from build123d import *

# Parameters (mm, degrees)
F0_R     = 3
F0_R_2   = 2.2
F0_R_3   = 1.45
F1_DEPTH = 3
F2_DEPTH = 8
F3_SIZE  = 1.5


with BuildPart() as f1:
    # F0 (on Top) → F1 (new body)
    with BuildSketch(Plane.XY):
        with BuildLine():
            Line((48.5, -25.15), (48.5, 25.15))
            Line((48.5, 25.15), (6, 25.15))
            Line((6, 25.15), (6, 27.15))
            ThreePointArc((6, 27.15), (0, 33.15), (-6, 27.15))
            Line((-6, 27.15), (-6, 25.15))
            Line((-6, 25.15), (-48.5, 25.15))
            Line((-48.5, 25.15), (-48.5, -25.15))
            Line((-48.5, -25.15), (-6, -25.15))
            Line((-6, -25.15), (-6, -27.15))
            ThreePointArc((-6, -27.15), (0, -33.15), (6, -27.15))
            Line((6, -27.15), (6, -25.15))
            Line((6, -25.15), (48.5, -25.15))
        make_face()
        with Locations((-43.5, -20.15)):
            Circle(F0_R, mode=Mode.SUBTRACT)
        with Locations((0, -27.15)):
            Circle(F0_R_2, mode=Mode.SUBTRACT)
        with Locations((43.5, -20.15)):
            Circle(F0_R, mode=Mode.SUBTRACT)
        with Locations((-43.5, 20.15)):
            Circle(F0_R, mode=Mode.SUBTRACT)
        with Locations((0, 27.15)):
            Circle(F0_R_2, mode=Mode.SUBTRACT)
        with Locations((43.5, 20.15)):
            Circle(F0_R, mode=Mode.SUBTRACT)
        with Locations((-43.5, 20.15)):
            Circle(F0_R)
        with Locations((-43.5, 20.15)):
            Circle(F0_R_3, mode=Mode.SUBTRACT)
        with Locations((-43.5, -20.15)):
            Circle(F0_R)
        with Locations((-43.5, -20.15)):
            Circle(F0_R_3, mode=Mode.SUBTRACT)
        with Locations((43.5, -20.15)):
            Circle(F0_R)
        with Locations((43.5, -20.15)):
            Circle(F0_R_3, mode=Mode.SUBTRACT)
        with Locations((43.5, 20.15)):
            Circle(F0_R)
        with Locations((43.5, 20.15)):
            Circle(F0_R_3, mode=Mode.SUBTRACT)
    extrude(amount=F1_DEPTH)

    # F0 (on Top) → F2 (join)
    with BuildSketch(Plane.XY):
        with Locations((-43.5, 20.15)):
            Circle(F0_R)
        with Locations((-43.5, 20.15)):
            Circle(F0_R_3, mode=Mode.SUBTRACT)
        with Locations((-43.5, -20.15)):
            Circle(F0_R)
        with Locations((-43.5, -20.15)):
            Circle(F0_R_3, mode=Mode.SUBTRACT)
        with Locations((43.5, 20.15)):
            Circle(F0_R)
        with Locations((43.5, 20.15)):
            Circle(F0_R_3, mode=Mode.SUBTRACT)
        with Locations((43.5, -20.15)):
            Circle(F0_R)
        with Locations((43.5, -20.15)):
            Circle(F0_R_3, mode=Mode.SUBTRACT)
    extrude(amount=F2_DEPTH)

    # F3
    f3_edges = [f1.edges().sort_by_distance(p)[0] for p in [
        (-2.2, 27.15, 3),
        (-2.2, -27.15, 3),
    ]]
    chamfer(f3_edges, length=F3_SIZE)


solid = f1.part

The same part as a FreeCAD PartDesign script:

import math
import FreeCAD as App
import Part
import Sketcher


def edges_at(feature, points):
    """Names of the edges that pass closest to the given points."""
    edges = feature.Shape.Edges
    near = lambda p: min(range(len(edges)), key=lambda i: edges[i].distToShape(Part.Vertex(*p))[0])
    return sorted({f"Edge{near(p) + 1}" for p in points})

doc = App.newDocument("Part")
body = doc.addObject("PartDesign::Body", "Body")

sketch1 = body.newObject("Sketcher::SketchObject", "Sketch")
sketch1.AttachmentSupport = (doc.getObject("XY_Plane"), [""])
sketch1.MapMode = "FlatFace"
sketch1.addGeometry([
    Part.LineSegment(App.Vector(48.5, -25.1, 0), App.Vector(48.5, 25.1, 0)),
    Part.LineSegment(App.Vector(48.5, 25.1, 0), App.Vector(6, 25.1, 0)),
    Part.LineSegment(App.Vector(6, 25.1, 0), App.Vector(6, 27.1, 0)),
    Part.ArcOfCircle(Part.Circle(App.Vector(0, 27.1, 0), App.Vector(0, 0, 1), 6), math.radians(0), math.radians(180)),
    Part.LineSegment(App.Vector(-6, 27.1, 0), App.Vector(-6, 25.1, 0)),
    Part.LineSegment(App.Vector(-6, 25.1, 0), App.Vector(-48.5, 25.1, 0)),
    Part.LineSegment(App.Vector(-48.5, 25.1, 0), App.Vector(-48.5, -25.1, 0)),
    Part.LineSegment(App.Vector(-48.5, -25.1, 0), App.Vector(-6, -25.1, 0)),
    Part.LineSegment(App.Vector(-6, -25.1, 0), App.Vector(-6, -27.1, 0)),
    Part.ArcOfCircle(Part.Circle(App.Vector(0, -27.1, 0), App.Vector(0, 0, 1), 6), math.radians(180), math.radians(360)),
    Part.LineSegment(App.Vector(6, -27.1, 0), App.Vector(6, -25.1, 0)),
    Part.LineSegment(App.Vector(6, -25.1, 0), App.Vector(48.5, -25.1, 0)),
    Part.Circle(App.Vector(-43.5, -20.1, 0), App.Vector(0, 0, 1), 1.4),
    Part.Circle(App.Vector(0, -27.1, 0), App.Vector(0, 0, 1), 2.2),
    Part.Circle(App.Vector(43.5, -20.1, 0), App.Vector(0, 0, 1), 1.4),
    Part.Circle(App.Vector(-43.5, 20.1, 0), App.Vector(0, 0, 1), 1.4),
    Part.Circle(App.Vector(0, 27.1, 0), App.Vector(0, 0, 1), 2.2),
    Part.Circle(App.Vector(43.5, 20.1, 0), App.Vector(0, 0, 1), 1.4),
], False)
sketch1.addConstraint([
    Sketcher.Constraint("Coincident", 0, 2, 1, 1),
    Sketcher.Constraint("Coincident", 1, 2, 2, 1),
    Sketcher.Constraint("Tangent", 2, 2, 3, 1),
    Sketcher.Constraint("Tangent", 3, 2, 4, 1),
    Sketcher.Constraint("Coincident", 4, 2, 5, 1),
    Sketcher.Constraint("Coincident", 5, 2, 6, 1),
    Sketcher.Constraint("Coincident", 6, 2, 7, 1),
    Sketcher.Constraint("Coincident", 7, 2, 8, 1),
    Sketcher.Constraint("Tangent", 8, 2, 9, 1),
    Sketcher.Constraint("Tangent", 9, 2, 10, 1),
    Sketcher.Constraint("Coincident", 10, 2, 11, 1),
    Sketcher.Constraint("Coincident", 11, 2, 0, 1),
    Sketcher.Constraint("Vertical", 0),
    Sketcher.Constraint("Horizontal", 1),
    Sketcher.Constraint("Vertical", 2),
    Sketcher.Constraint("Vertical", 4),
    Sketcher.Constraint("Horizontal", 5),
    Sketcher.Constraint("Vertical", 6),
    Sketcher.Constraint("Horizontal", 7),
    Sketcher.Constraint("Vertical", 8),
    Sketcher.Constraint("Vertical", 10),
    Sketcher.Constraint("Horizontal", 11),
    Sketcher.Constraint("Coincident", 13, 3, 9, 3),
    Sketcher.Constraint("Coincident", 16, 3, 3, 3),
    Sketcher.Constraint("Equal", 3, 9),
    Sketcher.Constraint("Equal", 12, 14),
    Sketcher.Constraint("Equal", 14, 15),
    Sketcher.Constraint("Equal", 13, 16),
    Sketcher.Constraint("Equal", 15, 17),
    Sketcher.Constraint("Symmetric", 3, 3, 9, 3, -1, 1),
    Sketcher.Constraint("Symmetric", 14, 3, 15, 3, -1, 1),
    Sketcher.Constraint("Symmetric", 12, 3, 17, 3, -1, 1),
    Sketcher.Constraint("Symmetric", 0, 2, 6, 2, -1, 1),
    Sketcher.Constraint("Symmetric", 12, 3, 14, 3, -2),
    Sketcher.Constraint("Symmetric", 1, 2, 4, 2, -2),
    Sketcher.Constraint("Horizontal", 7, 2, 10, 2),
    Sketcher.Constraint("Radius", 3, 6.0),
    Sketcher.Constraint("Diameter", 12, 2.9),
    Sketcher.Constraint("Diameter", 13, 4.4),
    Sketcher.Constraint("DistanceY", 2, 1, 2, 2, 2.0),
    Sketcher.Constraint("DistanceX", 1, 2, 1, 1, 42.5),
    Sketcher.Constraint("DistanceY", 0, 1, 0, 2, 50.3),
    Sketcher.Constraint("DistanceY", 9, 3, 12, 3, 7.0),
    Sketcher.Constraint("DistanceX", 12, 3, 14, 3, 87.0),
])
pad1 = body.newObject("PartDesign::Pad", "Pad")
pad1.Profile = sketch1
pad1.Length = 3

sketch2 = body.newObject("Sketcher::SketchObject", "Sketch001")
sketch2.AttachmentSupport = (doc.getObject("XY_Plane"), [""])
sketch2.MapMode = "FlatFace"
sketch2.addGeometry([
    Part.Circle(App.Vector(-43.5, 20.1, 0), App.Vector(0, 0, 1), 3),
    Part.Circle(App.Vector(-43.5, 20.1, 0), App.Vector(0, 0, 1), 1.4),
    Part.Circle(App.Vector(-43.5, -20.1, 0), App.Vector(0, 0, 1), 3),
    Part.Circle(App.Vector(-43.5, -20.1, 0), App.Vector(0, 0, 1), 1.4),
    Part.Circle(App.Vector(43.5, 20.1, 0), App.Vector(0, 0, 1), 3),
    Part.Circle(App.Vector(43.5, 20.1, 0), App.Vector(0, 0, 1), 1.4),
    Part.Circle(App.Vector(43.5, -20.1, 0), App.Vector(0, 0, 1), 3),
    Part.Circle(App.Vector(43.5, -20.1, 0), App.Vector(0, 0, 1), 1.4),
], False)
sketch2.addConstraint([
    Sketcher.Constraint("Coincident", 1, 3, 0, 3),
    Sketcher.Constraint("Coincident", 3, 3, 2, 3),
    Sketcher.Constraint("Coincident", 5, 3, 4, 3),
    Sketcher.Constraint("Coincident", 7, 3, 6, 3),
    Sketcher.Constraint("Equal", 0, 2),
    Sketcher.Constraint("Equal", 1, 3),
    Sketcher.Constraint("Equal", 2, 4),
    Sketcher.Constraint("Equal", 3, 5),
    Sketcher.Constraint("Equal", 4, 6),
    Sketcher.Constraint("Equal", 5, 7),
    Sketcher.Constraint("Symmetric", 2, 3, 4, 3, -1, 1),
    Sketcher.Constraint("Symmetric", 0, 3, 6, 3, -1, 1),
    Sketcher.Constraint("Symmetric", 0, 3, 4, 3, -2),
    Sketcher.Constraint("Diameter", 0, 6.0),
    Sketcher.Constraint("Diameter", 1, 2.9),
    Sketcher.Constraint("DistanceX", 0, 3, 4, 3, 87.0),
    Sketcher.Constraint("DistanceY", 2, 3, 0, 3, 40.3),
])
pad2 = body.newObject("PartDesign::Pad", "Pad001")
pad2.Profile = sketch2
pad2.Length = 8
doc.recompute()

chamfer = body.newObject("PartDesign::Chamfer", "Chamfer")
chamfer.Base = (pad2, edges_at(pad2, [(-2.2, 27.15, 3), (-2.2, -27.15, 3)]))
chamfer.Size = 1.5

doc.recompute()
